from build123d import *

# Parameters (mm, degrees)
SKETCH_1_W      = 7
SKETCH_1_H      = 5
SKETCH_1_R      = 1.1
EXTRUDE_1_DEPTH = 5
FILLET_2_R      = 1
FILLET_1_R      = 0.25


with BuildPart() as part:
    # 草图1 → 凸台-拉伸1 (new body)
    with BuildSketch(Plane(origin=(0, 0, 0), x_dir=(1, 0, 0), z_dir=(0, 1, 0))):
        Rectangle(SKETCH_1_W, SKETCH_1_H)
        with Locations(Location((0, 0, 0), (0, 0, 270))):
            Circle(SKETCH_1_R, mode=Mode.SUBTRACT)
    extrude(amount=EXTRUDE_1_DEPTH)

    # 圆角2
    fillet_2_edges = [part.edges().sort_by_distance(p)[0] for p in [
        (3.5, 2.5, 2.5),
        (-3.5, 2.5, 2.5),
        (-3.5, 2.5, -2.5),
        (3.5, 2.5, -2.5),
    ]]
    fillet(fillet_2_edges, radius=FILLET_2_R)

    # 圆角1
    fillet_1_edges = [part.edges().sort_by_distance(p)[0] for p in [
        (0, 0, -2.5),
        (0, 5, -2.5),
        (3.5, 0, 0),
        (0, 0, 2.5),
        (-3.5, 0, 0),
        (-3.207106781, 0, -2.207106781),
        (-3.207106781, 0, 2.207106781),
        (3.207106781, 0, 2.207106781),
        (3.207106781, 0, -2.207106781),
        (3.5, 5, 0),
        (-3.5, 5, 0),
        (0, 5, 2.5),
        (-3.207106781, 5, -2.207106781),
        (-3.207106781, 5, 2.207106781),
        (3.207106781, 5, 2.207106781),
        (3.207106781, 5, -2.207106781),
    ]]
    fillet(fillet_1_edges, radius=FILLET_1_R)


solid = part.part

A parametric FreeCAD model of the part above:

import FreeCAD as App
import Part
import Sketcher
from FreeCAD import Vector


def edges_at(feature, points):
    """Names of the edges that pass closest to the given points."""
    edges = feature.Shape.Edges
    near = lambda p: min(range(len(edges)), key=lambda i: edges[i].distToShape(Part.Vertex(*p))[0])
    return sorted({f"Edge{near(p) + 1}" for p in points})

doc = App.newDocument("Part")
body = doc.addObject("PartDesign::Body", "Body")

# Sketch on XZ plane
sketch1 = doc.addObject("Sketcher::SketchObject", "Sketch")
body.addObject(sketch1)
sketch1.AttachmentSupport = (doc.XZ_Plane, [""])
sketch1.MapMode = "FlatFace"
sketch1.addGeometry([
    Part.LineSegment(Vector(-3.5, -2.5, 0), Vector(-3.5, 2.5, 0)),  # 0
    Part.LineSegment(Vector(-3.5, 2.5, 0), Vector(3.5, 2.5, 0)),  # 1
    Part.LineSegment(Vector(3.5, 2.5, 0), Vector(3.5, -2.5, 0)),  # 2
    Part.LineSegment(Vector(3.5, -2.5, 0), Vector(-3.5, -2.5, 0)),  # 3
    Part.Circle(Vector(0, 0, 0), Vector(0, 0, 1), 1.1),  # 4
], False)
sketch1.addConstraint([
    Sketcher.Constraint("Coincident", 0, 2, 1, 1),
    Sketcher.Constraint("Coincident", 1, 2, 2, 1),
    Sketcher.Constraint("Coincident", 2, 2, 3, 1),
    Sketcher.Constraint("Coincident", 3, 2, 0, 1),
    Sketcher.Constraint("Vertical", 0),
    Sketcher.Constraint("Horizontal", 1),
    Sketcher.Constraint("Vertical", 2),
    Sketcher.Constraint("Horizontal", 3),
    Sketcher.Constraint("Coincident", 4, 3, -1, 1),
    Sketcher.Constraint("Symmetric", 0, 2, 2, 2, -1, 1),
    Sketcher.Constraint("Diameter", 4, 2.2),
    Sketcher.Constraint("DistanceX", 1, 1, 1, 2, 7.0),
    Sketcher.Constraint("DistanceY", 0, 1, 0, 2, 5.0),
])
pad1 = doc.addObject("PartDesign::Pad", "Pad")
body.addObject(pad1)
pad1.Profile = sketch1
pad1.Length = 5
pad1.Reversed = True
doc.recompute()

fillet = doc.addObject("PartDesign::Fillet", "Fillet")
body.addObject(fillet)
fillet.Base = (pad1, edges_at(pad1, [
    (3.5, 2.5, 2.5),
    (-3.5, 2.5, 2.5),
    (-3.5, 2.5, -2.5),
    (3.5, 2.5, -2.5),
]))
fillet.Radius = 1
doc.recompute()

fillet2 = doc.addObject("PartDesign::Fillet", "Fillet001")
body.addObject(fillet2)
fillet2.Base = (fillet, edges_at(fillet, [
    (0, 0, -2.5),
    (0, 5, -2.5),
    (3.5, 0, 0),
    (0, 0, 2.5),
    (-3.5, 0, 0),
    (-3.207, 0, -2.207),
    (-3.207, 0, 2.207),
    (3.207, 0, 2.207),
    (3.207, 0, -2.207),
    (3.5, 5, 0),
    (-3.5, 5, 0),
    (0, 5, 2.5),
    (-3.207, 5, -2.207),
    (-3.207, 5, 2.207),
    (3.207, 5, 2.207),
    (3.207, 5, -2.207),
]))
fillet2.Radius = 0.25

doc.recompute()
